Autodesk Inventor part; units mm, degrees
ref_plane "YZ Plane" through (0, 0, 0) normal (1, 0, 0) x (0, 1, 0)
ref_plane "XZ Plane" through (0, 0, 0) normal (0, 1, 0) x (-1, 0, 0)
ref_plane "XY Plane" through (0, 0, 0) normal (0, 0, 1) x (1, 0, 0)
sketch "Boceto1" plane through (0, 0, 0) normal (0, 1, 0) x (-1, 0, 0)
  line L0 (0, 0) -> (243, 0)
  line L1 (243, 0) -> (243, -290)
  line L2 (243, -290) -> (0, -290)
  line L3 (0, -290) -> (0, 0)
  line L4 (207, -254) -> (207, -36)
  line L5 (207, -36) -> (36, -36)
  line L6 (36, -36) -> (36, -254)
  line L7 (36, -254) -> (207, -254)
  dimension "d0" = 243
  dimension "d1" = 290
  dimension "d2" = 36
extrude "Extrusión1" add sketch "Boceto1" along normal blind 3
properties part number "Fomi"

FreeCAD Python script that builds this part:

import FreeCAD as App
import Part
import Sketcher
Q = App.Units.Quantity

doc = App.newDocument("Part")
params = doc.addObject("Spreadsheet::Sheet", "Params")
for row, (alias, value) in enumerate([
    ("sketch1_width", "243 mm"),
    ("sketch1_height", "290 mm"),
    ("pad1_length", "3 mm"),
], start=1):
    params.set(f"A{row}", alias)
    params.set(f"B{row}", "=" + value)
    params.setAlias(f"B{row}", alias)

body = doc.addObject("PartDesign::Body", "Body")

# Sketch on XZ plane
sketch1 = body.newObject("Sketcher::SketchObject", "Sketch")
sketch1.AttachmentSupport = (doc.getObject("XZ_Plane"), [""])
sketch1.MapMode = "FlatFace"
sketch1.addGeometry(Part.LineSegment(App.Vector(-243, 0, 0), App.Vector(0, 0, 0)), False)
sketch1.addGeometry(Part.LineSegment(App.Vector(0, 0, 0), App.Vector(0, -290, 0)), False)
sketch1.addGeometry(Part.LineSegment(App.Vector(0, -290, 0), App.Vector(-243, -290, 0)), False)
sketch1.addGeometry(Part.LineSegment(App.Vector(-243, -290, 0), App.Vector(-243, 0, 0)), False)
sketch1.addGeometry(Part.LineSegment(App.Vector(-207, -36, 0), App.Vector(-207, -254, 0)), False)
sketch1.addGeometry(Part.LineSegment(App.Vector(-207, -254, 0), App.Vector(-36, -254, 0)), False)
sketch1.addGeometry(Part.LineSegment(App.Vector(-36, -254, 0), App.Vector(-36, -36, 0)), False)
sketch1.addGeometry(Part.LineSegment(App.Vector(-36, -36, 0), App.Vector(-207, -36, 0)), False)
sketch1.addConstraint(Sketcher.Constraint("Coincident", 0, 2, 1, 1))
sketch1.addConstraint(Sketcher.Constraint("Coincident", 1, 2, 2, 1))
sketch1.addConstraint(Sketcher.Constraint("Coincident", 2, 2, 3, 1))
sketch1.addConstraint(Sketcher.Constraint("Coincident", 3, 2, 0, 1))
sketch1.addConstraint(Sketcher.Constraint("Coincident", 4, 2, 5, 1))
sketch1.addConstraint(Sketcher.Constraint("Coincident", 5, 2, 6, 1))
sketch1.addConstraint(Sketcher.Constraint("Coincident", 6, 2, 7, 1))
sketch1.addConstraint(Sketcher.Constraint("Coincident", 7, 2, 4, 1))
sketch1.addConstraint(Sketcher.Constraint("Horizontal", 0))
sketch1.addConstraint(Sketcher.Constraint("Vertical", 1))
sketch1.addConstraint(Sketcher.Constraint("Horizontal", 2))
sketch1.addConstraint(Sketcher.Constraint("Vertical", 3))
sketch1.addConstraint(Sketcher.Constraint("Vertical", 4))
sketch1.addConstraint(Sketcher.Constraint("Horizontal", 5))
sketch1.addConstraint(Sketcher.Constraint("Vertical", 6))
sketch1.addConstraint(Sketcher.Constraint("Horizontal", 7))
sketch1.addConstraint(Sketcher.Constraint("Coincident", 0, 2, -1, 1))
sketch1.addConstraint(Sketcher.Constraint("DistanceX", 0, 1, 0, 2, Q("243 mm")))
sketch1.addConstraint(Sketcher.Constraint("DistanceY", 1, 2, 1, 1, Q("290 mm")))
sketch1.addConstraint(Sketcher.Constraint("DistanceX", 5, 2, -1, 1, Q("36 mm")))
sketch1.addConstraint(Sketcher.Constraint("DistanceY", 6, 2, -1, 1, Q("36 mm")))
sketch1.addConstraint(Sketcher.Constraint("DistanceX", 2, 2, 4, 2, Q("36 mm")))
sketch1.addConstraint(Sketcher.Constraint("DistanceY", 2, 2, 4, 2, Q("36 mm")))
sketch1.setExpression("Constraints[17]", "Params.sketch1_width")
sketch1.setExpression("Constraints[18]", "Params.sketch1_height")
pad1 = body.newObject("PartDesign::Pad", "Pad")
pad1.Profile = sketch1
pad1.setExpression("Length", "Params.pad1_length")
pad1.Reversed = True

doc.recompute()
